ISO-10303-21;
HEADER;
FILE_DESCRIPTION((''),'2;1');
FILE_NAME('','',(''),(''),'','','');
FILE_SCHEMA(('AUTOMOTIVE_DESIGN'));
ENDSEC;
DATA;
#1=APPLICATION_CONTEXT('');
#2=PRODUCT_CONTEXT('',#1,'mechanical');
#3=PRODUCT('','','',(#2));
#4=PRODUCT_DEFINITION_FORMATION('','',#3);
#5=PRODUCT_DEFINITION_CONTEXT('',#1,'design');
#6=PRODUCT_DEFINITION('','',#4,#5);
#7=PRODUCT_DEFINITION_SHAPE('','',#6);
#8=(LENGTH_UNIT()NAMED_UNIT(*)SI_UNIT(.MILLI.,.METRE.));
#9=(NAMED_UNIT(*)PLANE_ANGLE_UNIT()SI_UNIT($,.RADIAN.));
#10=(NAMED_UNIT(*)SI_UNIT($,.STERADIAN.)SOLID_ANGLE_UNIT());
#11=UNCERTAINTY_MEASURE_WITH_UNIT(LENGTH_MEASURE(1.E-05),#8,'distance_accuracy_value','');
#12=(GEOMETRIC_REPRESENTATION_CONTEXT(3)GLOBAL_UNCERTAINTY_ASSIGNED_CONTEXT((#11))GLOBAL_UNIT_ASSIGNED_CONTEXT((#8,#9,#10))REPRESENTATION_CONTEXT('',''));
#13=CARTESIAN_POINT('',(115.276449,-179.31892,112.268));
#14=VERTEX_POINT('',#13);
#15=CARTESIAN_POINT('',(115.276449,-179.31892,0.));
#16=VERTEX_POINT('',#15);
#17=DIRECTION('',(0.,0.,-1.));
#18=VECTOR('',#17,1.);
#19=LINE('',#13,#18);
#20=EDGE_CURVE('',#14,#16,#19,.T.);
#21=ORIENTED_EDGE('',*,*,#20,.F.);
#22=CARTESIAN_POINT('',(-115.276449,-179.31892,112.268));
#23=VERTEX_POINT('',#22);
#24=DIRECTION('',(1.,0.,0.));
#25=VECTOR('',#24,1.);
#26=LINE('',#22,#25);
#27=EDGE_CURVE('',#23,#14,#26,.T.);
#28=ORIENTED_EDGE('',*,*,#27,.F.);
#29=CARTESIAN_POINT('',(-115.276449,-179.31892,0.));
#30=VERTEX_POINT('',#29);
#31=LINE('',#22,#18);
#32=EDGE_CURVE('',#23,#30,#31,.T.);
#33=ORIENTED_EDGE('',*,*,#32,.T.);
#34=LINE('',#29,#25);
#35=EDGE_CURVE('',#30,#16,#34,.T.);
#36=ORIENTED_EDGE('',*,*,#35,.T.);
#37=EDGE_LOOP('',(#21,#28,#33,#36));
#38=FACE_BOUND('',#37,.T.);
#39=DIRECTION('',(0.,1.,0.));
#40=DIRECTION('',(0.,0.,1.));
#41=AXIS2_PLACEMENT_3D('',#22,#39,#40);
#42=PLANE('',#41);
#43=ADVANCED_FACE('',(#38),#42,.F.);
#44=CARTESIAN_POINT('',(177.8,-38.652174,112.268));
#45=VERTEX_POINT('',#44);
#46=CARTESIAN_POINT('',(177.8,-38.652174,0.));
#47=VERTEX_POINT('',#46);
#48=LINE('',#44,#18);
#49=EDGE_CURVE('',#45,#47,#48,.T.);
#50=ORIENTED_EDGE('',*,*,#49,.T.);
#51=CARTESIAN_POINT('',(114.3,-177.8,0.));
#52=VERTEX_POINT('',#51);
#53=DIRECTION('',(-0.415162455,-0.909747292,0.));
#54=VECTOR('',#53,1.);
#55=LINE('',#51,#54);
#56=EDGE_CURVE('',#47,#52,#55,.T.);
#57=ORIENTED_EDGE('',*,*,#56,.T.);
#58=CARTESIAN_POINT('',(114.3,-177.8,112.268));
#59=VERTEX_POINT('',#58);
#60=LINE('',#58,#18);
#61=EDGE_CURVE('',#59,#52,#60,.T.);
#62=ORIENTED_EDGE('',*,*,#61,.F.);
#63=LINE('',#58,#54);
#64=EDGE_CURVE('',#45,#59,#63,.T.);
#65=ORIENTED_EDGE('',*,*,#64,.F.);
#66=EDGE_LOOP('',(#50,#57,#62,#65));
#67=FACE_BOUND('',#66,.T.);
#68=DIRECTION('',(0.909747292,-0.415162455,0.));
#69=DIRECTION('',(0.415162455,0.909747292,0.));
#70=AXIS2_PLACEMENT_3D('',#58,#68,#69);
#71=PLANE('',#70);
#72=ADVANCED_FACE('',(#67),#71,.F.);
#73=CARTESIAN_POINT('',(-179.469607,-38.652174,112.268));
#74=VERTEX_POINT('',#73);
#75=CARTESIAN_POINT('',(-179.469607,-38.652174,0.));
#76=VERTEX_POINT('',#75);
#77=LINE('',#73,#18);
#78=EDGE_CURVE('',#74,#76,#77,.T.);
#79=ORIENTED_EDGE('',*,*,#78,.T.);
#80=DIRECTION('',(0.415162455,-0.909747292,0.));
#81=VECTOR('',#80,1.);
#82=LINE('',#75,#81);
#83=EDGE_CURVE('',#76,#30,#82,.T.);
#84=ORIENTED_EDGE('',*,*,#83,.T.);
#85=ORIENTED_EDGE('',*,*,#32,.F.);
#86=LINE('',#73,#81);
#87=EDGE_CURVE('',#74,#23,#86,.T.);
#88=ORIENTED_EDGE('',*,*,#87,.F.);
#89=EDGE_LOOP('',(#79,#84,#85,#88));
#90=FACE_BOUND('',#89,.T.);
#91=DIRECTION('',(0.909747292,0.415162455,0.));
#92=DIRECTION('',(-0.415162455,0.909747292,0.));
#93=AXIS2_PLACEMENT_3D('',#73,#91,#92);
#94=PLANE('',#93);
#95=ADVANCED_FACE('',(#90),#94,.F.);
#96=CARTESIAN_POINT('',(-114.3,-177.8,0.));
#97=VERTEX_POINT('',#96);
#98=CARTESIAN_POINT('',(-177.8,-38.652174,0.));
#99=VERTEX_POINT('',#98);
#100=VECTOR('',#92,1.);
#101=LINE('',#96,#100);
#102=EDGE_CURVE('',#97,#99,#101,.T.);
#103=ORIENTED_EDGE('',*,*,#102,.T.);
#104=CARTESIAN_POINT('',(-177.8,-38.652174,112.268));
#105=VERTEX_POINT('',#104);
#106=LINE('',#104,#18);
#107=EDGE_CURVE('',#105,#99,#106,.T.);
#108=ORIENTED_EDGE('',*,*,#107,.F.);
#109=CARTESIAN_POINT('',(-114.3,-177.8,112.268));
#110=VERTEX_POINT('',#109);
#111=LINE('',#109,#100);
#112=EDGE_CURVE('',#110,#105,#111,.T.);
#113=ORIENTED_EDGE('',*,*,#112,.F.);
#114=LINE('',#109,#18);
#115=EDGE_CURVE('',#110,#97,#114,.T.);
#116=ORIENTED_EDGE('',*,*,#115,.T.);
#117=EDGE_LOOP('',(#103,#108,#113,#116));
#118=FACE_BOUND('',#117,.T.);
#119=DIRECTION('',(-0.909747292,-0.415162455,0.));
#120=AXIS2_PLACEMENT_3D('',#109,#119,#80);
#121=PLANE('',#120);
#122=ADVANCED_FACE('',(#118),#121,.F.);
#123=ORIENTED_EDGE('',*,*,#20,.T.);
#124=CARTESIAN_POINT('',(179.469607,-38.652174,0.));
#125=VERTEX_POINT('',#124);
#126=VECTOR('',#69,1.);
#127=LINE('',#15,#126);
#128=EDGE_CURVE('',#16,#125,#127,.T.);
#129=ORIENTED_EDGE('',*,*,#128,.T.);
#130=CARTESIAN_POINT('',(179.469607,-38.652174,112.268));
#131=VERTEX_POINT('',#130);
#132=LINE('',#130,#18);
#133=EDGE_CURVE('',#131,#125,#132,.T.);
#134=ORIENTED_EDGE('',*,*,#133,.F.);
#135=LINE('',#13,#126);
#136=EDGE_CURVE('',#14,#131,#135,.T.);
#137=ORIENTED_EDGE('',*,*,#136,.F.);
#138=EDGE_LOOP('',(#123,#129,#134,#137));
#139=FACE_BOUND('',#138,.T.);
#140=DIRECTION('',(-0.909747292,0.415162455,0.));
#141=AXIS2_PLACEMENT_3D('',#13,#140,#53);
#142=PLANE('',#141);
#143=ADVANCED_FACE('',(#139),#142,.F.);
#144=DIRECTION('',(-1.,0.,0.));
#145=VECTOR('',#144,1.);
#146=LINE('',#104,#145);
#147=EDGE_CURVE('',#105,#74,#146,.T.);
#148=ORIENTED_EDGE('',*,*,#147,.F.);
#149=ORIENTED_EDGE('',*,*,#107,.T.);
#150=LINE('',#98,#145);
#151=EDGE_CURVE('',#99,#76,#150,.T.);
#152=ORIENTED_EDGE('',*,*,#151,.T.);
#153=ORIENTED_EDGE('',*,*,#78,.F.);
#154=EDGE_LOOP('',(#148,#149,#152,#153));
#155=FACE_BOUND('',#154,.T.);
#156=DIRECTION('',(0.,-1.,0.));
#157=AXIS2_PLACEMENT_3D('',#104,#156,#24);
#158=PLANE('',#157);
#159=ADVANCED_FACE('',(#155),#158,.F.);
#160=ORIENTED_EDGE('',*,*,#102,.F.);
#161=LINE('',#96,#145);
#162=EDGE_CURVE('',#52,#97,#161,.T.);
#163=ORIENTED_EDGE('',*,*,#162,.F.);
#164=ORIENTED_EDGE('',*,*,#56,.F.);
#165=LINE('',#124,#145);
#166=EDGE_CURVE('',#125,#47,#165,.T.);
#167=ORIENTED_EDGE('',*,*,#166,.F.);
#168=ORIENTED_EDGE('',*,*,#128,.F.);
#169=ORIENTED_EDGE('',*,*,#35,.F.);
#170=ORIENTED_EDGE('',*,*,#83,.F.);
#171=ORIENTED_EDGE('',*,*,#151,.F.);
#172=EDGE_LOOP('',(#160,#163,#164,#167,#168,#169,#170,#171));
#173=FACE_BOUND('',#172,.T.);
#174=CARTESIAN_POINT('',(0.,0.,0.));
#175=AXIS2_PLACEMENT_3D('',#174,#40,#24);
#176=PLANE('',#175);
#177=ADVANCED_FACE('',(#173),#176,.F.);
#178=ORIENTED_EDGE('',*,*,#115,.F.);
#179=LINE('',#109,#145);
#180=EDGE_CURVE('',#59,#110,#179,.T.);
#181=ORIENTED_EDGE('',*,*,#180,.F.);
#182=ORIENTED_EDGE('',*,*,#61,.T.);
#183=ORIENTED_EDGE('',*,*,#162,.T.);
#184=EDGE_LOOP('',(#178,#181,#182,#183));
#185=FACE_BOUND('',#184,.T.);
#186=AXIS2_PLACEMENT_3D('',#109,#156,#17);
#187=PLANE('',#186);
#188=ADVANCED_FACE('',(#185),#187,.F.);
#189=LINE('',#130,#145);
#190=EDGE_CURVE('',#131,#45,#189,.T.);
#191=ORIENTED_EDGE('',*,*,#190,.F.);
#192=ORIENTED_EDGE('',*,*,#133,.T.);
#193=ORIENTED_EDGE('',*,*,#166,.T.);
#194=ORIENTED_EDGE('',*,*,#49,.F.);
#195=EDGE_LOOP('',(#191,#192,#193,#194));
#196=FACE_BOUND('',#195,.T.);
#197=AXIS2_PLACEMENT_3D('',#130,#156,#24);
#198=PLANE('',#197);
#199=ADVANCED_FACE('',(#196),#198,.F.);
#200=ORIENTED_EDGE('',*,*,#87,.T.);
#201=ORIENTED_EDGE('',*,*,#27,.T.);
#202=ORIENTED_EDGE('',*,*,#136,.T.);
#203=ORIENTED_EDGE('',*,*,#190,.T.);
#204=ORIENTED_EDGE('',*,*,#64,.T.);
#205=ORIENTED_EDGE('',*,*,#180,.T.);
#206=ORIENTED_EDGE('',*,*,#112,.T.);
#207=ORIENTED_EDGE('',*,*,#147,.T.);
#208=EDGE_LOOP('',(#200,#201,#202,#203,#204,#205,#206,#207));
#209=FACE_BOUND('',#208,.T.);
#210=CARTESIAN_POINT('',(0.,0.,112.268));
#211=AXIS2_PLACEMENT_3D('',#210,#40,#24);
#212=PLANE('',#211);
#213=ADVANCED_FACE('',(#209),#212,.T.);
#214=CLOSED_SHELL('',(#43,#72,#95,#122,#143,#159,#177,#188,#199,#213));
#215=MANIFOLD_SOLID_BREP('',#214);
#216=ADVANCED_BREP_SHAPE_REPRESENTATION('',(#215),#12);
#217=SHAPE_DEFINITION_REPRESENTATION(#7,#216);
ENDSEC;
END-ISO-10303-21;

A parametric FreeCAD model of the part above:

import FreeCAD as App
import Part
import Sketcher
from FreeCAD import Vector
Q = App.Units.Quantity

doc = App.newDocument("Part")
params = doc.addObject("Spreadsheet::Sheet", "Params")
for row, (alias, value) in enumerate([
    ("sketch1_width", "9 in"),
    ("pad1_length", "4.42 in"),
], start=1):
    params.set(f"A{row}", alias)
    params.set(f"B{row}", "=" + value)
    params.setAlias(f"B{row}", alias)

body = doc.addObject("PartDesign::Body", "Body")

# Sketch on XY plane
sketch1 = body.newObject("Sketcher::SketchObject", "Sketch")
sketch1.AttachmentSupport = (doc.getObject("XY_Plane"), [""])
sketch1.MapMode = "FlatFace"
sketch1.addGeometry(Part.LineSegment(Vector(114.3, -177.8, 0), Vector(-114.3, -177.8, 0)), False)
sketch1.addGeometry(Part.LineSegment(Vector(-114.3, -177.8, 0), Vector(-177.8, -38.7, 0)), False)
sketch1.addGeometry(Part.LineSegment(Vector(-177.8, -38.7, 0), Vector(-179.5, -38.7, 0)), False)
sketch1.addGeometry(Part.LineSegment(Vector(-179.5, -38.7, 0), Vector(-115.3, -179.3, 0)), False)
sketch1.addGeometry(Part.LineSegment(Vector(-115.3, -179.3, 0), Vector(115.3, -179.3, 0)), False)
sketch1.addGeometry(Part.LineSegment(Vector(115.3, -179.3, 0), Vector(179.5, -38.7, 0)), False)
sketch1.addGeometry(Part.LineSegment(Vector(179.5, -38.7, 0), Vector(177.8, -38.7, 0)), False)
sketch1.addGeometry(Part.LineSegment(Vector(177.8, -38.7, 0), Vector(114.3, -177.8, 0)), False)
sketch1.addConstraint(Sketcher.Constraint("Coincident", 0, 2, 1, 1))
sketch1.addConstraint(Sketcher.Constraint("Coincident", 1, 2, 2, 1))
sketch1.addConstraint(Sketcher.Constraint("Coincident", 2, 2, 3, 1))
sketch1.addConstraint(Sketcher.Constraint("Coincident", 3, 2, 4, 1))
sketch1.addConstraint(Sketcher.Constraint("Coincident", 4, 2, 5, 1))
sketch1.addConstraint(Sketcher.Constraint("Coincident", 5, 2, 6, 1))
sketch1.addConstraint(Sketcher.Constraint("Coincident", 6, 2, 7, 1))
sketch1.addConstraint(Sketcher.Constraint("Coincident", 7, 2, 0, 1))
sketch1.addConstraint(Sketcher.Constraint("Horizontal", 0))
sketch1.addConstraint(Sketcher.Constraint("Horizontal", 2))
sketch1.addConstraint(Sketcher.Constraint("Horizontal", 4))
sketch1.addConstraint(Sketcher.Constraint("Horizontal", 6))
sketch1.addConstraint(Sketcher.Constraint("Symmetric", 2, 2, 5, 2, -2))
sketch1.addConstraint(Sketcher.Constraint("Parallel", 1, 3))
sketch1.addConstraint(Sketcher.Constraint("Parallel", 5, 7))
sketch1.addConstraint(Sketcher.Constraint("Equal", 2, 6))
sketch1.addConstraint(Sketcher.Constraint("Equal", 3, 5))
sketch1.addConstraint(Sketcher.Constraint("DistanceX", 0, 2, 0, 1, Q("9 in")))
sketch1.addConstraint(Sketcher.Constraint("DistanceY", 0, 2, -1, 1, Q("7 in")))
sketch1.addConstraint(Sketcher.Constraint("DistanceX", 1, 2, -1, 1, Q("7 in")))
sketch1.addConstraint(Sketcher.Constraint("DistanceY", 3, 2, -1, 1, Q("7.0598 in")))
sketch1.addConstraint(Sketcher.Constraint("Distance", 3, 154.62178))
sketch1.addConstraint(Sketcher.Constraint("DistanceX", 2, 2, 2, 1, 1.669607))
sketch1.setExpression("Constraints[17]", "Params.sketch1_width")
pad1 = body.newObject("PartDesign::Pad", "Pad")
pad1.Profile = sketch1
pad1.setExpression("Length", "Params.pad1_length")

doc.recompute()
